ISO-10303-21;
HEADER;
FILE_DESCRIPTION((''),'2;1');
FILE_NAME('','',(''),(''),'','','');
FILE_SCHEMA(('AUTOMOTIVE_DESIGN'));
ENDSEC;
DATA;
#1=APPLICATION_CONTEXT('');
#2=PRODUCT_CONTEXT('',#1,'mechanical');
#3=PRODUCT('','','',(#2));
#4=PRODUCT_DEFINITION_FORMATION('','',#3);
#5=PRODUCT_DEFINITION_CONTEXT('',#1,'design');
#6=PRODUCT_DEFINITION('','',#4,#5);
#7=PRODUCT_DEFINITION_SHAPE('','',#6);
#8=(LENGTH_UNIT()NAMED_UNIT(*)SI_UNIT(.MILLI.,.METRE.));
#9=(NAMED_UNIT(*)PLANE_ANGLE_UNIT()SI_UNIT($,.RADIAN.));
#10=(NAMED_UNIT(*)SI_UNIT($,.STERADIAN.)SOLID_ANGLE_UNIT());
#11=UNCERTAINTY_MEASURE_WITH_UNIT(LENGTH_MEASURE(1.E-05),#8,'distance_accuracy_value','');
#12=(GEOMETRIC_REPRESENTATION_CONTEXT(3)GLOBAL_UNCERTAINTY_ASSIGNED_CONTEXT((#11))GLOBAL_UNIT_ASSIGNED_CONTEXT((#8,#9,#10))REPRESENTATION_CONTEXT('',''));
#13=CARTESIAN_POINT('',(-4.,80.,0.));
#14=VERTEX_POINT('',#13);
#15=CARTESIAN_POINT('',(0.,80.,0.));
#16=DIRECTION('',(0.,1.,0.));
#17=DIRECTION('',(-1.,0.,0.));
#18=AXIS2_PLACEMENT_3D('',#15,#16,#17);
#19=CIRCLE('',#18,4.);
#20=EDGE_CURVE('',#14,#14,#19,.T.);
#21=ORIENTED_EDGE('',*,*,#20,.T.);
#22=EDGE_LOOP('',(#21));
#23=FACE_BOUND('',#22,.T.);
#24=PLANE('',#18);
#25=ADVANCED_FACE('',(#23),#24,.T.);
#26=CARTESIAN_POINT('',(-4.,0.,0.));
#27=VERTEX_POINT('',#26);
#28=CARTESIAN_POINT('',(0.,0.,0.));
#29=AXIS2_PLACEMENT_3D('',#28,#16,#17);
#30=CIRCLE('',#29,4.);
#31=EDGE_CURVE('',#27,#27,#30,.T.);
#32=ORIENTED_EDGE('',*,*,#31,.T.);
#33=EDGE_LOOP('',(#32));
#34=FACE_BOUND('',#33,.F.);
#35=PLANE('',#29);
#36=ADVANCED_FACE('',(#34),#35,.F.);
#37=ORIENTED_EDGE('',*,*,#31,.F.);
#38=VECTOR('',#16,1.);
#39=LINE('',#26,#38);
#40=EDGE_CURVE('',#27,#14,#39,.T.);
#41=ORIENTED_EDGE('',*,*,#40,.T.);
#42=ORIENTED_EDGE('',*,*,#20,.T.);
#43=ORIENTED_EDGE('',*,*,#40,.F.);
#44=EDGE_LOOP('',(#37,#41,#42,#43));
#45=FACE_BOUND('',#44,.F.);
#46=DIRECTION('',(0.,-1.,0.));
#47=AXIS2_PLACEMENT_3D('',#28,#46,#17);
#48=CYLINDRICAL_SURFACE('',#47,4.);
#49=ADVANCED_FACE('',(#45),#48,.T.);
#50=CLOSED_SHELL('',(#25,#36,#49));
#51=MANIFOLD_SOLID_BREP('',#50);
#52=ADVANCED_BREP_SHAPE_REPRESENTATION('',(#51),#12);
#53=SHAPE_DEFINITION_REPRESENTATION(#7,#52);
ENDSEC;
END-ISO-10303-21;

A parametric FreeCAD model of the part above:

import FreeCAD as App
import Part
import Sketcher

doc = App.newDocument("Part")
params = doc.addObject("Spreadsheet::Sheet", "Params")
for row, (alias, value) in enumerate([
    ("sketch1_diameter", "8 mm"),
    ("pad1_length", "80 mm"),
], start=1):
    params.set(f"A{row}", alias)
    params.set(f"B{row}", "=" + value)
    params.setAlias(f"B{row}", alias)

body = doc.addObject("PartDesign::Body", "Body")

# Sketch on XZ plane
sketch1 = body.newObject("Sketcher::SketchObject", "Sketch")
sketch1.AttachmentSupport = (doc.getObject("XZ_Plane"), [""])
sketch1.MapMode = "FlatFace"
sketch1.addGeometry(Part.Circle(App.Vector(0, 0, 0), App.Vector(0, 0, 1), 4), False)
sketch1.addConstraint([
    Sketcher.Constraint("Coincident", 0, 3, -1, 1),
    Sketcher.Constraint("Diameter", 0, 8.0),
])
sketch1.setExpression("Constraints[1]", "Params.sketch1_diameter")
pad1 = body.newObject("PartDesign::Pad", "Pad")
pad1.Profile = sketch1
pad1.setExpression("Length", "Params.pad1_length")
pad1.Reversed = True

doc.recompute()
